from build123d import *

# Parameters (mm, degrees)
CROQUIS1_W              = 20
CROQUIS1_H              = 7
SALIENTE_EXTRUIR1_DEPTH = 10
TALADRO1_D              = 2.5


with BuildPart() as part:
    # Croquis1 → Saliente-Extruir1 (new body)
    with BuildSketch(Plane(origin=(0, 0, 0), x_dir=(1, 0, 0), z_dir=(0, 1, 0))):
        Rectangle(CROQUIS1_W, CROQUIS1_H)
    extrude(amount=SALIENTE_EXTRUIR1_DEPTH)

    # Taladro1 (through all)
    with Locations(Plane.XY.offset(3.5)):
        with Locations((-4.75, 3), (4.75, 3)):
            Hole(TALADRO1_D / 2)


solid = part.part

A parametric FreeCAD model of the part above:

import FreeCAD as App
import Part
import Sketcher
from FreeCAD import Vector


def add_polygon(sketch, points):
    """Adds a closed chain of lines whose ends are joined by coincident constraints."""
    first, n = sketch.GeometryCount, len(points)
    for a, b in zip(points, points[1:] + points[:1]):
        sketch.addGeometry(Part.LineSegment(App.Vector(*a, 0), App.Vector(*b, 0)), False)
    for i in range(n):
        sketch.addConstraint(Sketcher.Constraint("Coincident", first + i, 2, first + (i + 1) % n, 1))

doc = App.newDocument("Part")
body = doc.addObject("PartDesign::Body", "Body")

sketch1 = body.newObject("Sketcher::SketchObject", "Sketch")
sketch1.AttachmentSupport = (doc.getObject("XZ_Plane"), [""])
sketch1.MapMode = "FlatFace"
add_polygon(sketch1, [(-10, -4), (-10, 4), (10, 4), (10, -4)])
sketch1.addConstraint([
    Sketcher.Constraint("Vertical", 0),
    Sketcher.Constraint("Horizontal", 1),
    Sketcher.Constraint("Vertical", 2),
    Sketcher.Constraint("Horizontal", 3),
    Sketcher.Constraint("Symmetric", 0, 2, 2, 2, -1, 1),
    Sketcher.Constraint("DistanceX", 1, 1, 1, 2, 20.0),
    Sketcher.Constraint("DistanceY", 0, 1, 0, 2, 7.0),
])
pad1 = body.newObject("PartDesign::Pad", "Pad")
pad1.Profile = sketch1
pad1.Length = 10
pad1.Reversed = True

sketch2 = body.newObject("Sketcher::SketchObject", "Sketch001")
sketch2.AttachmentSupport = (doc.getObject("XY_Plane"), [""])
sketch2.MapMode = "FlatFace"
sketch2.AttachmentOffset = App.Placement(Vector(0, 0, 3.5), App.Rotation())
sketch2.addGeometry([
    Part.Circle(Vector(-4.8, 3, 0), Vector(0, 0, 1), 1.2),
    Part.Circle(Vector(4.8, 3, 0), Vector(0, 0, 1), 1.2),
], False)
sketch2.addConstraint([
    Sketcher.Constraint("Equal", 0, 1),
    Sketcher.Constraint("Symmetric", 0, 3, 1, 3, -2),
    Sketcher.Constraint("Diameter", 0, 2.5),
    Sketcher.Constraint("DistanceY", -1, 1, 0, 3, 3.0),
    Sketcher.Constraint("DistanceX", 0, 3, 1, 3, 9.5),
])
doc.recompute()
hole = body.newObject("PartDesign::Hole", "Hole")
hole.Profile = sketch2
hole.ThreadType = "None"
hole.Diameter = 2.5
hole.DepthType = "ThroughAll"

doc.recompute()
